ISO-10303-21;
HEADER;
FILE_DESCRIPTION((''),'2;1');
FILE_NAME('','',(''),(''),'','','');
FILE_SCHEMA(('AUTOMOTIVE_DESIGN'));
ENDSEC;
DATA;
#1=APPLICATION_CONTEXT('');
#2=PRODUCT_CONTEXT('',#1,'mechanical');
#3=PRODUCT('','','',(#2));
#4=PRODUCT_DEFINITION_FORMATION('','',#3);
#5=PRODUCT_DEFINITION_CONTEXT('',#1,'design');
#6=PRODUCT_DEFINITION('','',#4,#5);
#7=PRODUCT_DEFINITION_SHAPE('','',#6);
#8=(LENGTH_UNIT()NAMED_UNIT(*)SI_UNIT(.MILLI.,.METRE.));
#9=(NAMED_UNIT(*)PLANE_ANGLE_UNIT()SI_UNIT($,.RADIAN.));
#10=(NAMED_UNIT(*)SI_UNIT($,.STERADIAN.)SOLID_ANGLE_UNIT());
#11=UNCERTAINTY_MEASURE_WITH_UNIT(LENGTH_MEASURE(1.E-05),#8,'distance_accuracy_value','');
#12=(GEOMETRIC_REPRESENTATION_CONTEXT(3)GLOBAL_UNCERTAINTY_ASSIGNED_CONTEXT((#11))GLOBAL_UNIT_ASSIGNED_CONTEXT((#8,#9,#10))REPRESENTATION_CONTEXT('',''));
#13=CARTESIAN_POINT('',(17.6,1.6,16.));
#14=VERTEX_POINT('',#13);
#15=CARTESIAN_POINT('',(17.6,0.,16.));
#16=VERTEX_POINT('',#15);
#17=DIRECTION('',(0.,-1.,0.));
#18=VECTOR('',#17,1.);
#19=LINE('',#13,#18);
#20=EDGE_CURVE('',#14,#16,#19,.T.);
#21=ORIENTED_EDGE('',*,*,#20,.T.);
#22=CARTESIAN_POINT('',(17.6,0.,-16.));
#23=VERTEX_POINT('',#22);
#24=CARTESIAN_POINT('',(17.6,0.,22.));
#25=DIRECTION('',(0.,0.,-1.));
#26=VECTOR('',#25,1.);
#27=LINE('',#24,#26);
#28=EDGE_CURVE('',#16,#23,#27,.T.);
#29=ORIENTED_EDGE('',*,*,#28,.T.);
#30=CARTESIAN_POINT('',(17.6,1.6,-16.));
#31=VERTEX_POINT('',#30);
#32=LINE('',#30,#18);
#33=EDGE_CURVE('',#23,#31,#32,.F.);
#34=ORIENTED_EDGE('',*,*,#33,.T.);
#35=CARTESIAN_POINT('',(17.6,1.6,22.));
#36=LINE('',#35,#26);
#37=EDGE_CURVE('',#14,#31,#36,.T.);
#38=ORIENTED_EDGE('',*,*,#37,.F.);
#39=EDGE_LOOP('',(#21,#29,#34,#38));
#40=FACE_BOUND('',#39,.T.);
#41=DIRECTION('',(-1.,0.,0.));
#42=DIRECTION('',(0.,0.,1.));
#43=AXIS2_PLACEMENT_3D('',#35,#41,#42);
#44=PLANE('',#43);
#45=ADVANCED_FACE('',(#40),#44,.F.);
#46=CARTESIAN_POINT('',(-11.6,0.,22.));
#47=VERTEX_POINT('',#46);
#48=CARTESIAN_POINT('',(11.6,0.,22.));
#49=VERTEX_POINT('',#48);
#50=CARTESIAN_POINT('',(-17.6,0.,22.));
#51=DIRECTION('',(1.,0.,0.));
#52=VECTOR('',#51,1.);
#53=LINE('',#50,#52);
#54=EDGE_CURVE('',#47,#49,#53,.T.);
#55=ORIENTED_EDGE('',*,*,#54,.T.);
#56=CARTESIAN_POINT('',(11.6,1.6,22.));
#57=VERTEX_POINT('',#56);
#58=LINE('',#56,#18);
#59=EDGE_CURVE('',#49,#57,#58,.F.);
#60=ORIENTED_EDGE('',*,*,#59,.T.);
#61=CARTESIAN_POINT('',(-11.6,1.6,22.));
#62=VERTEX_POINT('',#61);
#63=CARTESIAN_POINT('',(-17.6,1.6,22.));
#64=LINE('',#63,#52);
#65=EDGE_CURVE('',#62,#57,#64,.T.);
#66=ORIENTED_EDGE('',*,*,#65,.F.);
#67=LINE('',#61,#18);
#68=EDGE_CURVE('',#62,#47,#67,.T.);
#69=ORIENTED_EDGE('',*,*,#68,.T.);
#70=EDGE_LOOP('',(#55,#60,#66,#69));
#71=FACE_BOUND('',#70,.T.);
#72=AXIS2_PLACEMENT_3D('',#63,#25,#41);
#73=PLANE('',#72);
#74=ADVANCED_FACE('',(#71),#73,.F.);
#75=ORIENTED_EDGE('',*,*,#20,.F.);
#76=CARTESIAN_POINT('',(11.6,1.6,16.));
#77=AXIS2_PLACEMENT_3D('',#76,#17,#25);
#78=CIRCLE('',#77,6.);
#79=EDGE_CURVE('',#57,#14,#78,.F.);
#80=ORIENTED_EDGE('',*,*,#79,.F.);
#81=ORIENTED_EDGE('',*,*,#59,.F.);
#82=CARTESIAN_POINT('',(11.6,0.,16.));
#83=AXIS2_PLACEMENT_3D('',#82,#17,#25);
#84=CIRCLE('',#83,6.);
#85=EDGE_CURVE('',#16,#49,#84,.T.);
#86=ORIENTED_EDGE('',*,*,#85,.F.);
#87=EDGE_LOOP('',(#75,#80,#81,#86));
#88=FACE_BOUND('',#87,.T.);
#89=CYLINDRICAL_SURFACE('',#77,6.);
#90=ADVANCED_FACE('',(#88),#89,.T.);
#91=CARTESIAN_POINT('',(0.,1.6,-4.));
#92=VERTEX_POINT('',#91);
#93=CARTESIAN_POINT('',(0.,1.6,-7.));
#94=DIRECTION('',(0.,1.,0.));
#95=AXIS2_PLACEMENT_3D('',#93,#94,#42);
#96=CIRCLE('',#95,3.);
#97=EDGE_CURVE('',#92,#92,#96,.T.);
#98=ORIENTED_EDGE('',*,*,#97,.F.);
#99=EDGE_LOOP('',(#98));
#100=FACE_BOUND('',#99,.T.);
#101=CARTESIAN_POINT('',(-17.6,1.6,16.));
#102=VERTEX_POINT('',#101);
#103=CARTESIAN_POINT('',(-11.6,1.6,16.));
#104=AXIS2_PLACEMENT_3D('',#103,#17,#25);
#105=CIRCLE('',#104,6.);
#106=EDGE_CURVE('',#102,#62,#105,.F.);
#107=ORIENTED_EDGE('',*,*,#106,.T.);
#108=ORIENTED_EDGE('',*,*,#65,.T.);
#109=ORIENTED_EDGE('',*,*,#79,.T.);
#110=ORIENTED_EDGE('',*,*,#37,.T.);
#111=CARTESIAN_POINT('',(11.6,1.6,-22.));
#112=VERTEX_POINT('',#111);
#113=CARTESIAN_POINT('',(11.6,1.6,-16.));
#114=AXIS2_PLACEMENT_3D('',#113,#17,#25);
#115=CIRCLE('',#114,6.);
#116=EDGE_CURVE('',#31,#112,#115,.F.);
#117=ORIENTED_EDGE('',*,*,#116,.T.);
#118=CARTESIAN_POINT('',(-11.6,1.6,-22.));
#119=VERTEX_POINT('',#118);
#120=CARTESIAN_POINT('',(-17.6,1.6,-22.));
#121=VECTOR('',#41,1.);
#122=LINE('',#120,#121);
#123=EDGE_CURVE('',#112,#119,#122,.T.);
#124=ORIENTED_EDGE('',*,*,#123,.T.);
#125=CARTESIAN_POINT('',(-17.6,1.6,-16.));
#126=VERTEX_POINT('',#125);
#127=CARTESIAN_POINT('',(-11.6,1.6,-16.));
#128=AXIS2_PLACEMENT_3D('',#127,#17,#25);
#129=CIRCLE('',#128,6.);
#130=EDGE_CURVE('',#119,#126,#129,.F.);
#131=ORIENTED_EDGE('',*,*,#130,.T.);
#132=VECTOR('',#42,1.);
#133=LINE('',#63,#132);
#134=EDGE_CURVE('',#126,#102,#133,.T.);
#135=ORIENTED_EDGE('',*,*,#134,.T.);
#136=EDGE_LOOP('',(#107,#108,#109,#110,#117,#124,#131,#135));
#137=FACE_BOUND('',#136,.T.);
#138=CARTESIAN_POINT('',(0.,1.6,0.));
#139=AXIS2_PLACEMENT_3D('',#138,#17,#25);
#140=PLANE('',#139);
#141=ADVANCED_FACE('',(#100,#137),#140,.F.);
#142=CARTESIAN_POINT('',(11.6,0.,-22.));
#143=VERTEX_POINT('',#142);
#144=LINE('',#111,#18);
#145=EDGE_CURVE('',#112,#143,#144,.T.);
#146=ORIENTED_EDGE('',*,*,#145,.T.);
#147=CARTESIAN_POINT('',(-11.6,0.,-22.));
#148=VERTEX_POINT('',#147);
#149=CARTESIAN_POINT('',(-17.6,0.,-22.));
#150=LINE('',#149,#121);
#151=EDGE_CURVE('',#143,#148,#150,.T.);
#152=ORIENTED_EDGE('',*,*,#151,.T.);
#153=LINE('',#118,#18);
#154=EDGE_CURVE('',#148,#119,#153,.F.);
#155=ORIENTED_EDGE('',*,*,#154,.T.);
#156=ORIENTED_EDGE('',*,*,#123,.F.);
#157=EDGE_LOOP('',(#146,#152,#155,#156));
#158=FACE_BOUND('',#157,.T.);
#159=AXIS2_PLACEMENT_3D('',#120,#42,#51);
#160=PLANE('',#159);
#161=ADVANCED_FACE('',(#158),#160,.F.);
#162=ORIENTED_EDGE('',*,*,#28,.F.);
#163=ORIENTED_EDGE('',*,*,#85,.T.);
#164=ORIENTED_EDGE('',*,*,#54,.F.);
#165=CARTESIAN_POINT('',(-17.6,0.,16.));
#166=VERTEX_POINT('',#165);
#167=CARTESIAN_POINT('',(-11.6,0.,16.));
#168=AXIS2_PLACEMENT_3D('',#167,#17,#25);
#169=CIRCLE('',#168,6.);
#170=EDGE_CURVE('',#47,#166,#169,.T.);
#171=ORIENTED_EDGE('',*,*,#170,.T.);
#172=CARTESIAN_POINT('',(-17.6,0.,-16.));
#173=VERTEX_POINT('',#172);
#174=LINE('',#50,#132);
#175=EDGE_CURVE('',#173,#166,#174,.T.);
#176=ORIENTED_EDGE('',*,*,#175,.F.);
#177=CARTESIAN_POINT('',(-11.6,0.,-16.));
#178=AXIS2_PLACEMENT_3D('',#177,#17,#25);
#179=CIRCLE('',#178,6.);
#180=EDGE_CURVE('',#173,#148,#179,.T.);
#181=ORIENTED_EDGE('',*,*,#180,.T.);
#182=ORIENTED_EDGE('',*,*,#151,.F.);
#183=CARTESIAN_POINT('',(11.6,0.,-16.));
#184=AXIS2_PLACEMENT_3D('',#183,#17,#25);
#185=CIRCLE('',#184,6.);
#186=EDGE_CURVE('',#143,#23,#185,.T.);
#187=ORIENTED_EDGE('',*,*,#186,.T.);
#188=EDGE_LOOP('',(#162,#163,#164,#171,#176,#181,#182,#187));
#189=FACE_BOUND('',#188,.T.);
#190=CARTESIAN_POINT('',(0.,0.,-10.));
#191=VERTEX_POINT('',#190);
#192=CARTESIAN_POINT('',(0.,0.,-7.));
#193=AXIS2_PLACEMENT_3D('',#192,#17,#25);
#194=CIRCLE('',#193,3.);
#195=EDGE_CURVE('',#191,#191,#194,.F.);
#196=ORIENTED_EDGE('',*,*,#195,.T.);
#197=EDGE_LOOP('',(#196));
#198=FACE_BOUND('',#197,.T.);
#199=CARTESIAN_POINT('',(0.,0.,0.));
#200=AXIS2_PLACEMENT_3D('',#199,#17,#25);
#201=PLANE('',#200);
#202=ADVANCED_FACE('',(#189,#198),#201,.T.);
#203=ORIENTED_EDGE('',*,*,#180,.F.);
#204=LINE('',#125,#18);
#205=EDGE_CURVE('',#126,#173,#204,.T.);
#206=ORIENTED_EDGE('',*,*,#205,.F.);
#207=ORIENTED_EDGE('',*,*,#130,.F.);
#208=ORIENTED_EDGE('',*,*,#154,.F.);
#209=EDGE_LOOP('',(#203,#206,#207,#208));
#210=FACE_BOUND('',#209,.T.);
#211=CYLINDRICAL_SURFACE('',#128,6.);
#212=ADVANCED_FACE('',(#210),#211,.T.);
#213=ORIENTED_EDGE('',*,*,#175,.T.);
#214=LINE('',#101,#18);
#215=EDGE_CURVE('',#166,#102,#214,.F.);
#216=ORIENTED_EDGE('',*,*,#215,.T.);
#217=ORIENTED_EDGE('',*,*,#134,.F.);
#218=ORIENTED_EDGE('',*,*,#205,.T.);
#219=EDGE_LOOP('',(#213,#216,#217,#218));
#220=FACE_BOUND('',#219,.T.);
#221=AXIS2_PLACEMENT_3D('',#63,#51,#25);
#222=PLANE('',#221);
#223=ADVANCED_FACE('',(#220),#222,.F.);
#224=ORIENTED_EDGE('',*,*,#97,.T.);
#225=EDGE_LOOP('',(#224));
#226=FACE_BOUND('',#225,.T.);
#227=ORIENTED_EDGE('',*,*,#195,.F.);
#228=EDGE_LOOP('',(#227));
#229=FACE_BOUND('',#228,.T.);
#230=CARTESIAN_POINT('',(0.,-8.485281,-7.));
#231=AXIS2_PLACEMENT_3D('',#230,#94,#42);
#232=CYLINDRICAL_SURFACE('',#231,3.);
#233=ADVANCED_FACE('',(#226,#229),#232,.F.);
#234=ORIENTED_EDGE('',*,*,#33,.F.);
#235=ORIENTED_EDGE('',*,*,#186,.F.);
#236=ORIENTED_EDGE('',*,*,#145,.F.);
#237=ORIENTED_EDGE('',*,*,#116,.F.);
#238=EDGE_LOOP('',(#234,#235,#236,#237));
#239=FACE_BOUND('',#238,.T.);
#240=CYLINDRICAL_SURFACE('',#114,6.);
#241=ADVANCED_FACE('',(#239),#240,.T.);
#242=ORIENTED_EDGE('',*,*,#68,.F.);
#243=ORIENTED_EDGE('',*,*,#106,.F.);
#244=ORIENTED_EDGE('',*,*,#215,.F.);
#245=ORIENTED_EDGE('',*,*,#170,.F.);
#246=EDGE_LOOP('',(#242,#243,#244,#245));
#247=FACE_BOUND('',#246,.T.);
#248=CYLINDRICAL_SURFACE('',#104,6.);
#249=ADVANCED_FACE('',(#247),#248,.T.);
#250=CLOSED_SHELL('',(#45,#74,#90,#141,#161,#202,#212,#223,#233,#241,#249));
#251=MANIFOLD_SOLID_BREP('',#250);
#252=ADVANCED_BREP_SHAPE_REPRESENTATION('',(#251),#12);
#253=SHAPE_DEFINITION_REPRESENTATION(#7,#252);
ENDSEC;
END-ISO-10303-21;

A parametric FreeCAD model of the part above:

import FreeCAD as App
import Part
import Sketcher

V = App.Vector


def edges_at(feature, points):
    """Names of the edges that pass closest to the given points."""
    edges = feature.Shape.Edges
    near = lambda p: min(range(len(edges)), key=lambda i: edges[i].distToShape(Part.Vertex(*p))[0])
    return sorted({f"Edge{near(p) + 1}" for p in points})


def add_polygon(sketch, points):
    """Adds a closed chain of lines whose ends are joined by coincident constraints."""
    first, n = sketch.GeometryCount, len(points)
    for a, b in zip(points, points[1:] + points[:1]):
        sketch.addGeometry(Part.LineSegment(App.Vector(*a, 0), App.Vector(*b, 0)), False)
    for i in range(n):
        sketch.addConstraint(Sketcher.Constraint("Coincident", first + i, 2, first + (i + 1) % n, 1))

doc = App.newDocument("Part")
body = doc.addObject("PartDesign::Body", "Body")

sketch1 = doc.addObject("Sketcher::SketchObject", "Sketch")
body.addObject(sketch1)
sketch1.AttachmentSupport = (doc.XZ_Plane, [""])
sketch1.MapMode = "FlatFace"
add_polygon(sketch1, [(-17.6, -22), (-17.6, 22), (17.6, 22), (17.6, -22)])
sketch1.addConstraint(Sketcher.Constraint("Vertical", 0))
sketch1.addConstraint(Sketcher.Constraint("Horizontal", 1))
sketch1.addConstraint(Sketcher.Constraint("Vertical", 2))
sketch1.addConstraint(Sketcher.Constraint("Horizontal", 3))
sketch1.addConstraint(Sketcher.Constraint("Symmetric", 0, 2, 2, 2, -1, 1))
sketch1.addConstraint(Sketcher.Constraint("DistanceY", 0, 1, 0, 2, 44.0))
sketch1.addConstraint(Sketcher.Constraint("DistanceX", 1, 1, 1, 2, 35.2))
pad1 = doc.addObject("PartDesign::Pad", "Pad")
body.addObject(pad1)
pad1.Profile = sketch1
pad1.Length = 1.6
pad1.Reversed = True
doc.recompute()

fillet = doc.addObject("PartDesign::Fillet", "Fillet")
body.addObject(fillet)
fillet.Base = (pad1, edges_at(pad1, [
    (17.6, 0.8, 22),
    (-17.6, 0.8, 22),
    (-17.6, 0.8, -22),
    (17.6, 0.8, -22),
]))
fillet.Radius = 6

sketch2 = doc.addObject("Sketcher::SketchObject", "Sketch001")
body.addObject(sketch2)
sketch2.AttachmentSupport = (doc.XZ_Plane, [""])
sketch2.MapMode = "FlatFace"
sketch2.AttachmentOffset = App.Placement(V(0, 0, -1.6), App.Rotation())
sketch2.addGeometry(Part.Circle(V(0, -7, 0), V(0, 0, 1), 3), False)
sketch2.addConstraint(Sketcher.Constraint("PointOnObject", 0, 3, -2))
sketch2.addConstraint(Sketcher.Constraint("Diameter", 0, 6.0))
sketch2.addConstraint(Sketcher.Constraint("DistanceY", 0, 3, -1, 1, 7.0))
pocket1 = doc.addObject("PartDesign::Pocket", "Pocket")
body.addObject(pocket1)
pocket1.Profile = sketch2
pocket1.Length = 1.6
pocket1.Reversed = True

doc.recompute()
